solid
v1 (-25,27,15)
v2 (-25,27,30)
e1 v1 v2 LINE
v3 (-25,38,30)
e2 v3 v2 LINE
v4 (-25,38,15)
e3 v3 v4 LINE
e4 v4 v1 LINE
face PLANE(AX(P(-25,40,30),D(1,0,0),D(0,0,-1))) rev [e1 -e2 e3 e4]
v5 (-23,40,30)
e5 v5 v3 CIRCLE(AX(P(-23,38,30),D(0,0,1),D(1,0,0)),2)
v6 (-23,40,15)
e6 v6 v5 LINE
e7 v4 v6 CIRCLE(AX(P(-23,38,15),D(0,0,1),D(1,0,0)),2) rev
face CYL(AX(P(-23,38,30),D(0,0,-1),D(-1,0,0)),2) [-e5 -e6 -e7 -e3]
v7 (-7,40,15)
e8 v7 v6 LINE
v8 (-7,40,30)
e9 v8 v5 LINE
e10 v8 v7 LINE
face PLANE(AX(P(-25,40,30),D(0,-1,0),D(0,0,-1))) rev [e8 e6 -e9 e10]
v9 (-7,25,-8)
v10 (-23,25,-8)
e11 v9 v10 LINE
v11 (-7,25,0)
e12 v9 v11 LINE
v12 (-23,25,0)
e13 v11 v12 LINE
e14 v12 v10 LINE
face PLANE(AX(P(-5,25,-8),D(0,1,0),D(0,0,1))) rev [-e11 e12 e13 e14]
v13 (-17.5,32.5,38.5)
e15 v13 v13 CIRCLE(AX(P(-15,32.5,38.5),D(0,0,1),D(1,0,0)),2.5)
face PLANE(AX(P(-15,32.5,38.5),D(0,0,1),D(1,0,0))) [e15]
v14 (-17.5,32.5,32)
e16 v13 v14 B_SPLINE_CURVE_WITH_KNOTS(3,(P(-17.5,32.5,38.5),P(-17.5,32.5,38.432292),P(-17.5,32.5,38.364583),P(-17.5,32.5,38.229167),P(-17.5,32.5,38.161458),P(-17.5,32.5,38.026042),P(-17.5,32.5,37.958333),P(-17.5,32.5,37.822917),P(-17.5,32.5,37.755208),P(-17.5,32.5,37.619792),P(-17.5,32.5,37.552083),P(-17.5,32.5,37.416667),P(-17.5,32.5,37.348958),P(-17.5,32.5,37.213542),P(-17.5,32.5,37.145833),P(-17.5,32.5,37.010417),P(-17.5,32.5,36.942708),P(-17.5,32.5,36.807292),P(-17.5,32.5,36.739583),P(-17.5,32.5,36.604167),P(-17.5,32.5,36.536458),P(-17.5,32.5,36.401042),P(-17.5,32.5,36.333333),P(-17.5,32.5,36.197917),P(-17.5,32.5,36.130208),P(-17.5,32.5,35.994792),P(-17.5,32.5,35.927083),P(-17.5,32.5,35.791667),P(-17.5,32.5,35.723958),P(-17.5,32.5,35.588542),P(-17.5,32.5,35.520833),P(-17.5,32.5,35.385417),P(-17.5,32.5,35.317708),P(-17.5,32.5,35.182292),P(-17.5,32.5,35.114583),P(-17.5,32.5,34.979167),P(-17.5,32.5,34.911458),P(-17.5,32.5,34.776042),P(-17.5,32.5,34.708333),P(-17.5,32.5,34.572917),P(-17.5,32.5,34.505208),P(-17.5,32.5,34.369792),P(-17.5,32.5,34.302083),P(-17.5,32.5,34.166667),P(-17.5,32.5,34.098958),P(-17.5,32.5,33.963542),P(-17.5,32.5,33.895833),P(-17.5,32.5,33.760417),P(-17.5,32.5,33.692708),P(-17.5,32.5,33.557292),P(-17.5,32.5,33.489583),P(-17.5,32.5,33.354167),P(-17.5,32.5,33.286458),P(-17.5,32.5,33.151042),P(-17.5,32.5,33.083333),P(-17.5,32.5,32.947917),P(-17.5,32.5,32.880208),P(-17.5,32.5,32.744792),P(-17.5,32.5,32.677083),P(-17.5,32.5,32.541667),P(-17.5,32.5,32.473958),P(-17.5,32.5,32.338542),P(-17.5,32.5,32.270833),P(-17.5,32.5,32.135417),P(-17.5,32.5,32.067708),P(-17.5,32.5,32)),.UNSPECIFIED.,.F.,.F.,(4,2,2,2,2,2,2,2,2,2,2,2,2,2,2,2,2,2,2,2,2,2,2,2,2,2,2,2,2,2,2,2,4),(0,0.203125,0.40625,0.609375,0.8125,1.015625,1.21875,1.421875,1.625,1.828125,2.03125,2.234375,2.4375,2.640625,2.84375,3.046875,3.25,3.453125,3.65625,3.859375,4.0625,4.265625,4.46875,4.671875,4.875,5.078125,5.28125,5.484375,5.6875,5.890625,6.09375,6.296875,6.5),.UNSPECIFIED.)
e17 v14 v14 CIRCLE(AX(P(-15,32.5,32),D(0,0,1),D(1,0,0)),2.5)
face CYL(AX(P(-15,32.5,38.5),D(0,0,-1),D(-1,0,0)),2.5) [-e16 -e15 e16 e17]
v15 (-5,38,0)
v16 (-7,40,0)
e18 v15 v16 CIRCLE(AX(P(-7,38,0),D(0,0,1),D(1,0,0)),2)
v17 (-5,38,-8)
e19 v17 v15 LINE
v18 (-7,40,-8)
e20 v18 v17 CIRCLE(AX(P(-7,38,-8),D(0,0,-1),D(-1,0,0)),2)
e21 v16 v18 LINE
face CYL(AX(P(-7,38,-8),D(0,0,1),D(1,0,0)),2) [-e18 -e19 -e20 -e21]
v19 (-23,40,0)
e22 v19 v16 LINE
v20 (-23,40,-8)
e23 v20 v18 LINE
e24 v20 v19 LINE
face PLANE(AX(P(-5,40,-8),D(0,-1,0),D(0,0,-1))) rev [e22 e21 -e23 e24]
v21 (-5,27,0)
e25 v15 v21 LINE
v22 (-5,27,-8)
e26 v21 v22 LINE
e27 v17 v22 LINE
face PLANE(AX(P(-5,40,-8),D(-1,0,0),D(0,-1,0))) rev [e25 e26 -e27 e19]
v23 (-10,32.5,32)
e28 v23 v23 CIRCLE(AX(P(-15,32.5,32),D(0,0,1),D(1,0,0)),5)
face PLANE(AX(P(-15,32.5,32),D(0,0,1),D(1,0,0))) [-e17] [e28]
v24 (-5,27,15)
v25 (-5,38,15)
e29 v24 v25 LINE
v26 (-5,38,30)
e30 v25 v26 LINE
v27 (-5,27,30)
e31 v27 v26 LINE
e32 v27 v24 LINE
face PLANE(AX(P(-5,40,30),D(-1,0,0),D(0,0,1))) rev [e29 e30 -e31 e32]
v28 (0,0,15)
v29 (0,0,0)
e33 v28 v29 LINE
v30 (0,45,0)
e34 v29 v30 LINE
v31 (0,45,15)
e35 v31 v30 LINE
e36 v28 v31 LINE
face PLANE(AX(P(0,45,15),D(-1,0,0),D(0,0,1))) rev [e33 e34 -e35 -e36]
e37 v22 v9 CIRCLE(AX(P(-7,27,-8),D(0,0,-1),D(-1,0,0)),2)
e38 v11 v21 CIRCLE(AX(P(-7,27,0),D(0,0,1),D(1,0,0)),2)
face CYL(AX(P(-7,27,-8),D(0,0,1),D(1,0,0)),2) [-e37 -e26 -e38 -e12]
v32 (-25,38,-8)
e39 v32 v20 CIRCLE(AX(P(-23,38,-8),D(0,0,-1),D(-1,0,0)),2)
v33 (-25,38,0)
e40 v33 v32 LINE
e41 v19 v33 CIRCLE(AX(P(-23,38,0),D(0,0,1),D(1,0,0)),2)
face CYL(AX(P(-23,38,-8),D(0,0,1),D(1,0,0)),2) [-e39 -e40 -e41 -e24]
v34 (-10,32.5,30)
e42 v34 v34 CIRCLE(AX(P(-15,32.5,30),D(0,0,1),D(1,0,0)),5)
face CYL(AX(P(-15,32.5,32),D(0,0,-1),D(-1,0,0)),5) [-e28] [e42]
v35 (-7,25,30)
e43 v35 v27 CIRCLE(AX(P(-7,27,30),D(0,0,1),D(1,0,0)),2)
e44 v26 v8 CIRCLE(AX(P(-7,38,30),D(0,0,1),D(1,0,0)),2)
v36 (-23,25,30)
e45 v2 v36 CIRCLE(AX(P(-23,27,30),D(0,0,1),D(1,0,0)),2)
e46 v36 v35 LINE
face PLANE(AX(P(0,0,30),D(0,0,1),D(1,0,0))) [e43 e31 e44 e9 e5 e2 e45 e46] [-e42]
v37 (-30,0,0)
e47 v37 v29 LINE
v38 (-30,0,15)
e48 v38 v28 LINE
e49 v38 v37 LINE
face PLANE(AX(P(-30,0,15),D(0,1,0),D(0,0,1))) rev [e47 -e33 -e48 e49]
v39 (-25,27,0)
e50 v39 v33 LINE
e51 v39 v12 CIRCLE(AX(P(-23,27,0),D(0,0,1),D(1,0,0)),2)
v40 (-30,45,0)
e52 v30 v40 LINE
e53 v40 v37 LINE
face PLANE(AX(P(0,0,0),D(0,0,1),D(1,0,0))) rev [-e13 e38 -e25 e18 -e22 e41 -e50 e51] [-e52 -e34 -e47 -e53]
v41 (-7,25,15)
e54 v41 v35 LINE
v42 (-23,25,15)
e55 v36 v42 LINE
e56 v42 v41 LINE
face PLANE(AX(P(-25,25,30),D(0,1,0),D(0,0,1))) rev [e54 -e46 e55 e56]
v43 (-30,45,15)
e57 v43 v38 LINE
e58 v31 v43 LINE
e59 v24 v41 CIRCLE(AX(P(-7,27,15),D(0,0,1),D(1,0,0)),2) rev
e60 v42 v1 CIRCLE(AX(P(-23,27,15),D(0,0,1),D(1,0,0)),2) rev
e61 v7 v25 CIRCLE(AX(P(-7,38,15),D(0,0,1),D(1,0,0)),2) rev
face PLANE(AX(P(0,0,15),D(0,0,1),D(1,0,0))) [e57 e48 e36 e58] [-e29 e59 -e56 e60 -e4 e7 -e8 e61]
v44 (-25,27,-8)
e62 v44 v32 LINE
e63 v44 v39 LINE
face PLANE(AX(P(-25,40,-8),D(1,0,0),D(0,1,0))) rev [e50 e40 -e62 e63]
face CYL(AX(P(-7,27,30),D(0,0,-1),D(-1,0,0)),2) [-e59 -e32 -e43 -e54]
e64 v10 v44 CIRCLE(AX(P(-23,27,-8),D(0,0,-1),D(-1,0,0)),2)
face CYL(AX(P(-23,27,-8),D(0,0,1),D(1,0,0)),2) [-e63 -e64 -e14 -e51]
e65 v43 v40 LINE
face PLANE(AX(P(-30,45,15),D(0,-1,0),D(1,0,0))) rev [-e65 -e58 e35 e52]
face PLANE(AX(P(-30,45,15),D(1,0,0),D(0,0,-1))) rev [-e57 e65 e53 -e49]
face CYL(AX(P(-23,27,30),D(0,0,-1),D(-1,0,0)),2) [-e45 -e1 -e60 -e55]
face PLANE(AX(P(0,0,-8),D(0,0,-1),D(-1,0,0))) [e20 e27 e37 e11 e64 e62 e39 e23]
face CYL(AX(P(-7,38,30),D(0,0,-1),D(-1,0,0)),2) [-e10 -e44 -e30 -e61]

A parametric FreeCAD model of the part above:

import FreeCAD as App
import Part
import Sketcher
Q = App.Units.Quantity


def edges_at(feature, points):
    """Names of the edges that pass closest to the given points."""
    edges = feature.Shape.Edges
    near = lambda p: min(range(len(edges)), key=lambda i: edges[i].distToShape(Part.Vertex(*p))[0])
    return sorted({f"Edge{near(p) + 1}" for p in points})


def add_polygon(sketch, points):
    """Adds a closed chain of lines whose ends are joined by coincident constraints."""
    first, n = sketch.GeometryCount, len(points)
    for a, b in zip(points, points[1:] + points[:1]):
        sketch.addGeometry(Part.LineSegment(App.Vector(*a, 0), App.Vector(*b, 0)), False)
    for i in range(n):
        sketch.addConstraint(Sketcher.Constraint("Coincident", first + i, 2, first + (i + 1) % n, 1))

doc = App.newDocument("Part")
params = doc.addObject("Spreadsheet::Sheet", "Params")
for row, (alias, value) in enumerate([
    ("sketch1_width", "30 mm"),
    ("sketch1_height", "45 mm"),
    ("pad1_length", "15 mm"),
    ("sketch2_width", "20 mm"),
    ("sketch2_height", "15 mm"),
    ("pad2_length", "15 mm"),
    ("sketch3_width", "20 mm"),
    ("sketch3_height", "15 mm"),
    ("pad3_length", "8 mm"),
    ("fillet_radius", "2 mm"),
    ("sketch4_diameter", "10 mm"),
    ("pad4_length", "2 mm"),
    ("sketch5_diameter", "5 mm"),
    ("pad5_length", "6.5 mm"),
], start=1):
    params.set(f"A{row}", alias)
    params.set(f"B{row}", "=" + value)
    params.setAlias(f"B{row}", alias)

body = doc.addObject("PartDesign::Body", "Body")

# Sketch on XY plane
sketch1 = doc.addObject("Sketcher::SketchObject", "Sketch")
body.addObject(sketch1)
sketch1.AttachmentSupport = (doc.XY_Plane, [""])
sketch1.MapMode = "FlatFace"
add_polygon(sketch1, [(-30, 45), (-30, 0), (0, 0), (0, 45)])  # lines 0-3
sketch1.addConstraint(Sketcher.Constraint("Vertical", 0))
sketch1.addConstraint(Sketcher.Constraint("Horizontal", 1))
sketch1.addConstraint(Sketcher.Constraint("Vertical", 2))
sketch1.addConstraint(Sketcher.Constraint("Horizontal", 3))
sketch1.addConstraint(Sketcher.Constraint("Coincident", 1, 2, -1, 1))
sketch1.addConstraint(Sketcher.Constraint("DistanceX", 1, 1, 1, 2, Q("30 mm")))
sketch1.addConstraint(Sketcher.Constraint("DistanceY", 0, 2, 0, 1, Q("45 mm")))
sketch1.setExpression("Constraints[9]", "Params.sketch1_width")
sketch1.setExpression("Constraints[10]", "Params.sketch1_height")
pad1 = doc.addObject("PartDesign::Pad", "Pad")
body.addObject(pad1)
pad1.Profile = sketch1
pad1.setExpression("Length", "Params.pad1_length")

# Sketch on XY plane
sketch2 = doc.addObject("Sketcher::SketchObject", "Sketch001")
body.addObject(sketch2)
sketch2.AttachmentSupport = (doc.XY_Plane, [""])
sketch2.MapMode = "FlatFace"
sketch2.AttachmentOffset = App.Placement(App.Vector(0, 0, 15), App.Rotation())
add_polygon(sketch2, [(-25, 40), (-25, 25), (-5, 25), (-5, 40)])  # lines 0-3
sketch2.addConstraint(Sketcher.Constraint("Vertical", 0))
sketch2.addConstraint(Sketcher.Constraint("Horizontal", 1))
sketch2.addConstraint(Sketcher.Constraint("Vertical", 2))
sketch2.addConstraint(Sketcher.Constraint("Horizontal", 3))
sketch2.addConstraint(Sketcher.Constraint("DistanceX", 1, 1, 1, 2, Q("20 mm")))
sketch2.addConstraint(Sketcher.Constraint("DistanceY", 0, 2, 0, 1, Q("15 mm")))
sketch2.addConstraint(Sketcher.Constraint("DistanceX", 0, 2, -1, 1, Q("25 mm")))
sketch2.addConstraint(Sketcher.Constraint("DistanceY", -1, 1, 0, 2, Q("25 mm")))
sketch2.setExpression("Constraints[8]", "Params.sketch2_width")
sketch2.setExpression("Constraints[9]", "Params.sketch2_height")
pad2 = doc.addObject("PartDesign::Pad", "Pad001")
body.addObject(pad2)
pad2.Profile = sketch2
pad2.setExpression("Length", "Params.pad2_length")

# Sketch on XY plane
sketch3 = doc.addObject("Sketcher::SketchObject", "Sketch002")
body.addObject(sketch3)
sketch3.AttachmentSupport = (doc.XY_Plane, [""])
sketch3.MapMode = "FlatFace"
add_polygon(sketch3, [(-5, 40), (-5, 25), (-25, 25), (-25, 40)])  # lines 0-3
sketch3.addConstraint(Sketcher.Constraint("Vertical", 0))
sketch3.addConstraint(Sketcher.Constraint("Horizontal", 1))
sketch3.addConstraint(Sketcher.Constraint("Vertical", 2))
sketch3.addConstraint(Sketcher.Constraint("Horizontal", 3))
sketch3.addConstraint(Sketcher.Constraint("DistanceX", 1, 2, 1, 1, Q("20 mm")))
sketch3.addConstraint(Sketcher.Constraint("DistanceY", 0, 2, 0, 1, Q("15 mm")))
sketch3.addConstraint(Sketcher.Constraint("DistanceX", 0, 2, -1, 1, Q("5 mm")))
sketch3.addConstraint(Sketcher.Constraint("DistanceY", -1, 1, 0, 2, Q("25 mm")))
sketch3.setExpression("Constraints[8]", "Params.sketch3_width")
sketch3.setExpression("Constraints[9]", "Params.sketch3_height")
pad3 = doc.addObject("PartDesign::Pad", "Pad002")
body.addObject(pad3)
pad3.Profile = sketch3
pad3.setExpression("Length", "Params.pad3_length")
pad3.Reversed = True
doc.recompute()

fillet = doc.addObject("PartDesign::Fillet", "Fillet")
body.addObject(fillet)
fillet.Base = (pad3, edges_at(pad3, [
    (-25, 40, 22.5),
    (-25, 25, 22.5),
    (-5, 25, 22.5),
    (-5, 40, 22.5),
    (-5, 40, -4),
    (-5, 25, -4),
    (-25, 25, -4),
    (-25, 40, -4),
]))
fillet.setExpression("Radius", "Params.fillet_radius")

# Sketch on XY plane
sketch4 = doc.addObject("Sketcher::SketchObject", "Sketch003")
body.addObject(sketch4)
sketch4.AttachmentSupport = (doc.XY_Plane, [""])
sketch4.MapMode = "FlatFace"
sketch4.AttachmentOffset = App.Placement(App.Vector(0, 0, 30), App.Rotation())
sketch4.addGeometry(Part.Circle(App.Vector(-15, 32, 0), App.Vector(0, 0, 1), 5), False)
sketch4.addConstraint(Sketcher.Constraint("Diameter", 0, Q("10 mm")))
sketch4.addConstraint(Sketcher.Constraint("DistanceX", 0, 3, -1, 1, Q("15 mm")))
sketch4.addConstraint(Sketcher.Constraint("DistanceY", -1, 1, 0, 3, Q("32.5 mm")))
sketch4.setExpression("Constraints[0]", "Params.sketch4_diameter")
pad4 = doc.addObject("PartDesign::Pad", "Pad003")
body.addObject(pad4)
pad4.Profile = sketch4
pad4.setExpression("Length", "Params.pad4_length")

# Sketch on XY plane
sketch5 = doc.addObject("Sketcher::SketchObject", "Sketch004")
body.addObject(sketch5)
sketch5.AttachmentSupport = (doc.XY_Plane, [""])
sketch5.MapMode = "FlatFace"
sketch5.AttachmentOffset = App.Placement(App.Vector(0, 0, 32), App.Rotation())
sketch5.addGeometry(Part.Circle(App.Vector(-15, 32.5, 0), App.Vector(0, 0, 1), 2.5), False)
sketch5.addConstraint(Sketcher.Constraint("Diameter", 0, Q("5 mm")))
sketch5.addConstraint(Sketcher.Constraint("DistanceX", 0, 3, -1, 1, Q("15 mm")))
sketch5.addConstraint(Sketcher.Constraint("DistanceY", -1, 1, 0, 3, Q("32.5 mm")))
sketch5.setExpression("Constraints[0]", "Params.sketch5_diameter")
pad5 = doc.addObject("PartDesign::Pad", "Pad004")
body.addObject(pad5)
pad5.Profile = sketch5
pad5.setExpression("Length", "Params.pad5_length")

doc.recompute()
